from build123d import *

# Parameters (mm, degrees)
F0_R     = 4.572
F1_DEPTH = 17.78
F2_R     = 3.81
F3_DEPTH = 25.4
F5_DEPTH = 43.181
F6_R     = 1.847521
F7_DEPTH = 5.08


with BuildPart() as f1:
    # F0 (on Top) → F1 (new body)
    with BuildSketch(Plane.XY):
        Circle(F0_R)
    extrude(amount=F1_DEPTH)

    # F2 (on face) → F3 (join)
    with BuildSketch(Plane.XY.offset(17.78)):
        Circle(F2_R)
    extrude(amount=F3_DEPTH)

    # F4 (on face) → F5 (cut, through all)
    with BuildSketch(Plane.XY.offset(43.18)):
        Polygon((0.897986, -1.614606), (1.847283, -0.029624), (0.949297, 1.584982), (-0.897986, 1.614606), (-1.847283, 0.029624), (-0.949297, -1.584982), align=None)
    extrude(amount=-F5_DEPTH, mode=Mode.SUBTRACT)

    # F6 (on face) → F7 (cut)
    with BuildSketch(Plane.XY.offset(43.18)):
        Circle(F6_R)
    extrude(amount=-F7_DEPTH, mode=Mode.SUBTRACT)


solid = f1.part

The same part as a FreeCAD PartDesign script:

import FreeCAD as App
import Part
import Sketcher
from FreeCAD import Vector
Q = App.Units.Quantity

doc = App.newDocument("Part")
body = doc.addObject("PartDesign::Body", "Body")

sketch1 = doc.addObject("Sketcher::SketchObject", "Sketch")
body.addObject(sketch1)
sketch1.AttachmentSupport = (doc.XY_Plane, [""])
sketch1.MapMode = "FlatFace"
sketch1.addGeometry(Part.Circle(Vector(0, 0, 0), Vector(0, 0, 1), 4.6), False)
sketch1.addConstraint([
    Sketcher.Constraint("Coincident", 0, 3, -1, 1),
    Sketcher.Constraint("Diameter", 0, Q("0.36 in")),
])
pad1 = doc.addObject("PartDesign::Pad", "Pad")
body.addObject(pad1)
pad1.Profile = sketch1
pad1.Length = Q("0.7 in")

sketch2 = doc.addObject("Sketcher::SketchObject", "Sketch001")
body.addObject(sketch2)
sketch2.AttachmentSupport = (doc.XY_Plane, [""])
sketch2.MapMode = "FlatFace"
sketch2.AttachmentOffset = App.Placement(Vector(0, 0, 0.7 * 25.4), App.Rotation())
sketch2.addGeometry(Part.Circle(Vector(0, 0, 0), Vector(0, 0, 1), 3.8), False)
sketch2.addConstraint([
    Sketcher.Constraint("Coincident", 0, 3, -1, 1),
    Sketcher.Constraint("Diameter", 0, Q("0.3 in")),
])
pad2 = doc.addObject("PartDesign::Pad", "Pad001")
body.addObject(pad2)
pad2.Profile = sketch2
pad2.Length = Q("1 in")

sketch3 = doc.addObject("Sketcher::SketchObject", "Sketch002")
body.addObject(sketch3)
sketch3.AttachmentSupport = (doc.XY_Plane, [""])
sketch3.MapMode = "FlatFace"
sketch3.AttachmentOffset = App.Placement(Vector(0, 0, 1.7 * 25.4), App.Rotation())
sketch3.addGeometry([
    Part.LineSegment(Vector(0.9, -1.6, 0), Vector(1.8, 0, 0)),
    Part.LineSegment(Vector(1.8, 0, 0), Vector(0.9, 1.6, 0)),
    Part.LineSegment(Vector(0.9, 1.6, 0), Vector(-0.9, 1.6, 0)),
    Part.LineSegment(Vector(-0.9, 1.6, 0), Vector(-1.8, 0, 0)),
    Part.LineSegment(Vector(-1.8, 0, 0), Vector(-0.9, -1.6, 0)),
    Part.LineSegment(Vector(-0.9, -1.6, 0), Vector(0.9, -1.6, 0)),
], False)
sketch3.addConstraint([
    Sketcher.Constraint("Coincident", 0, 2, 1, 1),
    Sketcher.Constraint("Coincident", 1, 2, 2, 1),
    Sketcher.Constraint("Coincident", 2, 2, 3, 1),
    Sketcher.Constraint("Coincident", 3, 2, 4, 1),
    Sketcher.Constraint("Coincident", 4, 2, 5, 1),
    Sketcher.Constraint("Coincident", 5, 2, 0, 1),
    Sketcher.Constraint("Symmetric", 0, 2, 3, 2, -1, 1),
    Sketcher.Constraint("Symmetric", 1, 2, 4, 2, -1, 1),
    Sketcher.Constraint("Symmetric", 2, 2, 5, 2, -1, 1),
    Sketcher.Constraint("Equal", 0, 1),
    Sketcher.Constraint("Equal", 1, 2),
    Sketcher.Constraint("Distance", 0, Q("1.847521 mm")),
    Sketcher.Constraint("DistanceY", -1, 1, 1, 2, Q("1.584982 mm")),
    Sketcher.Constraint("DistanceX", 2, 2, 0, 2, Q("2.745269 mm")),
    Sketcher.Constraint("DistanceY", 0, 2, 2, 2, Q("1.64423 mm")),
])
pocket1 = doc.addObject("PartDesign::Pocket", "Pocket")
body.addObject(pocket1)
pocket1.Profile = sketch3
pocket1.Type = "ThroughAll"

sketch4 = doc.addObject("Sketcher::SketchObject", "Sketch003")
body.addObject(sketch4)
sketch4.AttachmentSupport = (doc.XY_Plane, [""])
sketch4.MapMode = "FlatFace"
sketch4.AttachmentOffset = App.Placement(Vector(0, 0, 1.7 * 25.4), App.Rotation())
sketch4.addGeometry(Part.Circle(Vector(0, 0, 0), Vector(0, 0, 1), 1.8), False)
sketch4.addConstraint([
    Sketcher.Constraint("Coincident", 0, 3, -1, 1),
    Sketcher.Constraint("Diameter", 0, Q("3.695042 mm")),
])
pocket2 = doc.addObject("PartDesign::Pocket", "Pocket001")
body.addObject(pocket2)
pocket2.Profile = sketch4
pocket2.Length = Q("0.2 in")

doc.recompute()
